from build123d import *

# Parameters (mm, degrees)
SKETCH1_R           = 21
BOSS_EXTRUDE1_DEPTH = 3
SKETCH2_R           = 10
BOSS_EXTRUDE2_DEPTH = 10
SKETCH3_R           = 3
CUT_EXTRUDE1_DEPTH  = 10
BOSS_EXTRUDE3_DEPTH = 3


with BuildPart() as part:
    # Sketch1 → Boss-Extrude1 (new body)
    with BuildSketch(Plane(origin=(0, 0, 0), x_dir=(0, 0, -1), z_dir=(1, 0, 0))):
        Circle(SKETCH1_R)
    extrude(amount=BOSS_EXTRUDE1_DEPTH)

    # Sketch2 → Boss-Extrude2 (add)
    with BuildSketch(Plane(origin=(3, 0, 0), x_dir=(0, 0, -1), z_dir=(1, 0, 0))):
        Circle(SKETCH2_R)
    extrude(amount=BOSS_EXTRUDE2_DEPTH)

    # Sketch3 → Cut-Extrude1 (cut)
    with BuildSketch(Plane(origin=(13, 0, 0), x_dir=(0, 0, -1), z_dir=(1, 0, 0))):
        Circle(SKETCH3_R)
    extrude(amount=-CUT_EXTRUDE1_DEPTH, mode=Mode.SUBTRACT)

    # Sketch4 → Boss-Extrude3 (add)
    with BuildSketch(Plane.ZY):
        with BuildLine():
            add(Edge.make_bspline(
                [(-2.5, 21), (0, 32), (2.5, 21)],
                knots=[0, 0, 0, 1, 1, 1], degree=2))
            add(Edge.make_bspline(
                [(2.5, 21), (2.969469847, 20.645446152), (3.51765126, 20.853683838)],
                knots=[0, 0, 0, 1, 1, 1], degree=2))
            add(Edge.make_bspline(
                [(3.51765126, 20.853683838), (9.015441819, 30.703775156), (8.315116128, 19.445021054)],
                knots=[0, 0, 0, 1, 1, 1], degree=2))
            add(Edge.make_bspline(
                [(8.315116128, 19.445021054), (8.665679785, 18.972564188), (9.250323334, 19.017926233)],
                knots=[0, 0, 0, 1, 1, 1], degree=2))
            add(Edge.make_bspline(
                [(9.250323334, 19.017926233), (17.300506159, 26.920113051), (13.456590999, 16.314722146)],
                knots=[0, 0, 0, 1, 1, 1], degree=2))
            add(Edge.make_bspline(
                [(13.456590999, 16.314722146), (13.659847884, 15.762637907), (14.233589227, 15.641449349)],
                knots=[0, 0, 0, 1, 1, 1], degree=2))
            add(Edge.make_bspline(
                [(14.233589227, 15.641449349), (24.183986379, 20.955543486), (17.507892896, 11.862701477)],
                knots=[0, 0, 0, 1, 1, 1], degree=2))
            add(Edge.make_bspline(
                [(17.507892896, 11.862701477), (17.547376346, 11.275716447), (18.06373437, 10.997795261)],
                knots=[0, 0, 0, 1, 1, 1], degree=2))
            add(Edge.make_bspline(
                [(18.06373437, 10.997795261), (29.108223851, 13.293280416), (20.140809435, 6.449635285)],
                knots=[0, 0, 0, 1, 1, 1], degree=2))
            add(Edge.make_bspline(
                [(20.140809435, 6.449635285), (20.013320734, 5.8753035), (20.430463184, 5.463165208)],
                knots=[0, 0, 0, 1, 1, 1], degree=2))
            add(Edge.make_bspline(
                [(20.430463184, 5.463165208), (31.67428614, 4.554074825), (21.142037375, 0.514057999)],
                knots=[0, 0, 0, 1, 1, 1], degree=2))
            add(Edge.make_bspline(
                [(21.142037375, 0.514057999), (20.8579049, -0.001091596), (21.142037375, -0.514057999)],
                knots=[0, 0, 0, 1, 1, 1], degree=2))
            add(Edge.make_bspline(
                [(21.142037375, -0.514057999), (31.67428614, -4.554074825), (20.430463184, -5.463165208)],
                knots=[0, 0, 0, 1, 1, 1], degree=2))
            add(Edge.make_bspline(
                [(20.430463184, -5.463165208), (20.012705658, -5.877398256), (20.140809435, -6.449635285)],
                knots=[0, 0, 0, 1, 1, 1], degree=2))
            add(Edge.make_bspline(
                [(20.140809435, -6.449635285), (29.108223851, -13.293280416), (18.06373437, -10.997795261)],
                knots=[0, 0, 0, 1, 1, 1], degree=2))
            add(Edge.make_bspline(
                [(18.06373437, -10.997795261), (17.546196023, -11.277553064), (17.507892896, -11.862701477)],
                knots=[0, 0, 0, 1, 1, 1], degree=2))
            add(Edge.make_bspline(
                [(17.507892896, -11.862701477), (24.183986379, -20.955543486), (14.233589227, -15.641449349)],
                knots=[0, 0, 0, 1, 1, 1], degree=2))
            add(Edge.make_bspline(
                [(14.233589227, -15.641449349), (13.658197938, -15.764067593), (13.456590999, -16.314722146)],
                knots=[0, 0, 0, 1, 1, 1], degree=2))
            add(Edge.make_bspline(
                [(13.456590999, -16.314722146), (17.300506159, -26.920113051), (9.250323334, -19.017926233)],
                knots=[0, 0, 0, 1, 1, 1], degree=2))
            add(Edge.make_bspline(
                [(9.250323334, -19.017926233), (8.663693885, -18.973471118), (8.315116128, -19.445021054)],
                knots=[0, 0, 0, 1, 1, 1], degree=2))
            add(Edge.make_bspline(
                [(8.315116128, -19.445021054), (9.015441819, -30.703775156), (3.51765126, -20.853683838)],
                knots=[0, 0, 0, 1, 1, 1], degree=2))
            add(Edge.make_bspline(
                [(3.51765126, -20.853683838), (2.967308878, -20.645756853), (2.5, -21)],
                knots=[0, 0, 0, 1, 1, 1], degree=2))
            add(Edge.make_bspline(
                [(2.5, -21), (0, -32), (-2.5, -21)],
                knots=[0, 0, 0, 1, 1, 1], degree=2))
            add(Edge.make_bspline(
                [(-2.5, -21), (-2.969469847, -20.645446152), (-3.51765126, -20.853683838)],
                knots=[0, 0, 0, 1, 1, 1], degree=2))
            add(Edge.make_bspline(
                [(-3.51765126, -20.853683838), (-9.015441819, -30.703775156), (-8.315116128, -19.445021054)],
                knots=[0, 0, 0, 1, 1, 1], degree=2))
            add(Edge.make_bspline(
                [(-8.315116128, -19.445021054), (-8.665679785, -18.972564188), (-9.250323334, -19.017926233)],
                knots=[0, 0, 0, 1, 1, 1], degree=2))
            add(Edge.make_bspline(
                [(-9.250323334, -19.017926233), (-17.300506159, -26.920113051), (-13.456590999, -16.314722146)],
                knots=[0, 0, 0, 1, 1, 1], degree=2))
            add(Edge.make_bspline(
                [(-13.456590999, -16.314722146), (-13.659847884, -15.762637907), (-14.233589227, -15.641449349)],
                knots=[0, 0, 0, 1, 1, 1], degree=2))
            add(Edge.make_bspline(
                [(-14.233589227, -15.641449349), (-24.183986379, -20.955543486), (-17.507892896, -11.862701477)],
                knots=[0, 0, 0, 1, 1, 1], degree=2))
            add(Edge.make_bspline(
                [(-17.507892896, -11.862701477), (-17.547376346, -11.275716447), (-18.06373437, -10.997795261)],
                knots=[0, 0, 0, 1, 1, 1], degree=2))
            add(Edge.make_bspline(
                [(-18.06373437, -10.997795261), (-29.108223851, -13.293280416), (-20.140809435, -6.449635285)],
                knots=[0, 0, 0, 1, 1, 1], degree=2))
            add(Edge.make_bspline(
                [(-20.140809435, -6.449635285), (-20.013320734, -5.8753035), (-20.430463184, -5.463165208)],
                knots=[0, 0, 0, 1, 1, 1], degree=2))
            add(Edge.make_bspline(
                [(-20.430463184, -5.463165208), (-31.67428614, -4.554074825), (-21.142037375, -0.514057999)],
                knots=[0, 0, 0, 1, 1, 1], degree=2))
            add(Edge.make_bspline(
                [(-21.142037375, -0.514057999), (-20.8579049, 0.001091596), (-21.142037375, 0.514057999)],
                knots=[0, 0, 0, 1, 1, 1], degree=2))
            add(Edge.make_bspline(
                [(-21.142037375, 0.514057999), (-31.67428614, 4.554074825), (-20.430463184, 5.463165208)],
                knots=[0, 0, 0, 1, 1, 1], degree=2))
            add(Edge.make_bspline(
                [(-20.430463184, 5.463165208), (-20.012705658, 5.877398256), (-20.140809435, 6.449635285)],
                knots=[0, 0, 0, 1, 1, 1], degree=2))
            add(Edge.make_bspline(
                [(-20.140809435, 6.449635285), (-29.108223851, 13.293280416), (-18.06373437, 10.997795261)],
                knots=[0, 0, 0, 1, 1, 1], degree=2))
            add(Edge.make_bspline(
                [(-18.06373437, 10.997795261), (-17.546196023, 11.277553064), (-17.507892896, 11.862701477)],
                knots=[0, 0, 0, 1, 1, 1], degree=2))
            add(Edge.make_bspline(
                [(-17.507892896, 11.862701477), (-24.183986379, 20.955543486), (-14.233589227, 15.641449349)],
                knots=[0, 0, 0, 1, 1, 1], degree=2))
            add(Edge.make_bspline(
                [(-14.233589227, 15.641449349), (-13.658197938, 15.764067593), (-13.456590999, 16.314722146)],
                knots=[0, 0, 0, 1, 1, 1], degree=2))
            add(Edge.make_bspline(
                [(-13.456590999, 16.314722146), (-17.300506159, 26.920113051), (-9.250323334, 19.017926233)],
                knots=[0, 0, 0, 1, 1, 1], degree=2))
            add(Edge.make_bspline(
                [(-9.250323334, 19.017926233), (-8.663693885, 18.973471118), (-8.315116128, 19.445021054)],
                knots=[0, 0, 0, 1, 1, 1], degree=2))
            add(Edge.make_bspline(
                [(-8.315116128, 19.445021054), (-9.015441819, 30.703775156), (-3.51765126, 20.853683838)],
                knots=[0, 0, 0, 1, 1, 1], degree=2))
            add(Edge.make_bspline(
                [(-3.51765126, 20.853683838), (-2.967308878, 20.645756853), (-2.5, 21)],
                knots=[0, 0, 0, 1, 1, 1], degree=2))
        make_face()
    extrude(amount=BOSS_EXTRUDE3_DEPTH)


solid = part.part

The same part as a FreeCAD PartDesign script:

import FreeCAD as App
import Part
import Sketcher

doc = App.newDocument("Part")
body = doc.addObject("PartDesign::Body", "Body")

# Sketch on YZ plane
sketch1 = body.newObject("Sketcher::SketchObject", "Sketch")
sketch1.AttachmentSupport = (doc.getObject("YZ_Plane"), [""])
sketch1.MapMode = "FlatFace"
sketch1.addGeometry(Part.Circle(App.Vector(0, 0, 0), App.Vector(0, 0, 1), 21), False)
sketch1.addConstraint(Sketcher.Constraint("Coincident", 0, 3, -1, 1))
sketch1.addConstraint(Sketcher.Constraint("Diameter", 0, 42.0))
pad1 = body.newObject("PartDesign::Pad", "Pad")
pad1.Profile = sketch1
pad1.Length = 3

# Sketch on YZ plane
sketch2 = body.newObject("Sketcher::SketchObject", "Sketch001")
sketch2.AttachmentSupport = (doc.getObject("YZ_Plane"), [""])
sketch2.MapMode = "FlatFace"
sketch2.AttachmentOffset = App.Placement(App.Vector(0, 0, 3), App.Rotation())
sketch2.addGeometry(Part.Circle(App.Vector(0, 0, 0), App.Vector(0, 0, 1), 10), False)
sketch2.addConstraint(Sketcher.Constraint("Coincident", 0, 3, -1, 1))
sketch2.addConstraint(Sketcher.Constraint("Diameter", 0, 20.0))
pad2 = body.newObject("PartDesign::Pad", "Pad001")
pad2.Profile = sketch2
pad2.Length = 10

# Sketch on YZ plane
sketch3 = body.newObject("Sketcher::SketchObject", "Sketch002")
sketch3.AttachmentSupport = (doc.getObject("YZ_Plane"), [""])
sketch3.MapMode = "FlatFace"
sketch3.AttachmentOffset = App.Placement(App.Vector(0, 0, 13), App.Rotation())
sketch3.addGeometry(Part.Circle(App.Vector(0, 0, 0), App.Vector(0, 0, 1), 3), False)
sketch3.addConstraint(Sketcher.Constraint("Coincident", 0, 3, -1, 1))
sketch3.addConstraint(Sketcher.Constraint("Diameter", 0, 6.0))
pocket1 = body.newObject("PartDesign::Pocket", "Pocket")
pocket1.Profile = sketch3
pocket1.Length = 10

# Sketch on YZ plane
sketch4 = body.newObject("Sketcher::SketchObject", "Sketch003")
sketch4.AttachmentSupport = (doc.getObject("YZ_Plane"), [""])
sketch4.MapMode = "FlatFace"
sketch4.addGeometry(Part.BSplineCurve([App.Vector(21, -2.5, 0), App.Vector(32, 0, 0), App.Vector(21, 2.5, 0)], [3, 3], [0, 1], False, 2, [1, 1, 1], False), False)
sketch4.addGeometry(Part.BSplineCurve([App.Vector(20.853684, -3.517651, 0), App.Vector(20.645757, -2.967309, 0), App.Vector(21, -2.5, 0)], [3, 3], [0, 1], False, 2, [1, 1, 1], False), False)
sketch4.addGeometry(Part.BSplineCurve([App.Vector(19.445021, -8.315116, 0), App.Vector(30.703775, -9.015442, 0), App.Vector(20.853684, -3.517651, 0)], [3, 3], [0, 1], False, 2, [1, 1, 1], False), False)
sketch4.addGeometry(Part.BSplineCurve([App.Vector(19.017926, -9.250323, 0), App.Vector(18.973471, -8.663694, 0), App.Vector(19.445021, -8.315116, 0)], [3, 3], [0, 1], False, 2, [1, 1, 1], False), False)
sketch4.addGeometry(Part.BSplineCurve([App.Vector(16.314722, -13.456591, 0), App.Vector(26.920113, -17.300506, 0), App.Vector(19.017926, -9.250323, 0)], [3, 3], [0, 1], False, 2, [1, 1, 1], False), False)
sketch4.addGeometry(Part.BSplineCurve([App.Vector(15.641449, -14.233589, 0), App.Vector(15.764068, -13.658198, 0), App.Vector(16.314722, -13.456591, 0)], [3, 3], [0, 1], False, 2, [1, 1, 1], False), False)
sketch4.addGeometry(Part.BSplineCurve([App.Vector(11.862701, -17.507893, 0), App.Vector(20.955543, -24.183986, 0), App.Vector(15.641449, -14.233589, 0)], [3, 3], [0, 1], False, 2, [1, 1, 1], False), False)
sketch4.addGeometry(Part.BSplineCurve([App.Vector(10.997795, -18.063734, 0), App.Vector(11.277553, -17.546196, 0), App.Vector(11.862701, -17.507893, 0)], [3, 3], [0, 1], False, 2, [1, 1, 1], False), False)
sketch4.addGeometry(Part.BSplineCurve([App.Vector(6.449635, -20.140809, 0), App.Vector(13.29328, -29.108224, 0), App.Vector(10.997795, -18.063734, 0)], [3, 3], [0, 1], False, 2, [1, 1, 1], False), False)
sketch4.addGeometry(Part.BSplineCurve([App.Vector(5.463165, -20.430463, 0), App.Vector(5.877398, -20.012706, 0), App.Vector(6.449635, -20.140809, 0)], [3, 3], [0, 1], False, 2, [1, 1, 1], False), False)
sketch4.addGeometry(Part.BSplineCurve([App.Vector(0.514058, -21.142037, 0), App.Vector(4.554075, -31.674286, 0), App.Vector(5.463165, -20.430463, 0)], [3, 3], [0, 1], False, 2, [1, 1, 1], False), False)
sketch4.addGeometry(Part.BSplineCurve([App.Vector(-0.514058, -21.142037, 0), App.Vector(0.001092, -20.857905, 0), App.Vector(0.514058, -21.142037, 0)], [3, 3], [0, 1], False, 2, [1, 1, 1], False), False)
sketch4.addGeometry(Part.BSplineCurve([App.Vector(-5.463165, -20.430463, 0), App.Vector(-4.554075, -31.674286, 0), App.Vector(-0.514058, -21.142037, 0)], [3, 3], [0, 1], False, 2, [1, 1, 1], False), False)
sketch4.addGeometry(Part.BSplineCurve([App.Vector(-6.449635, -20.140809, 0), App.Vector(-5.875304, -20.013321, 0), App.Vector(-5.463165, -20.430463, 0)], [3, 3], [0, 1], False, 2, [1, 1, 1], False), False)
sketch4.addGeometry(Part.BSplineCurve([App.Vector(-10.997795, -18.063734, 0), App.Vector(-13.29328, -29.108224, 0), App.Vector(-6.449635, -20.140809, 0)], [3, 3], [0, 1], False, 2, [1, 1, 1], False), False)
sketch4.addGeometry(Part.BSplineCurve([App.Vector(-11.862701, -17.507893, 0), App.Vector(-11.275716, -17.547376, 0), App.Vector(-10.997795, -18.063734, 0)], [3, 3], [0, 1], False, 2, [1, 1, 1], False), False)
sketch4.addGeometry(Part.BSplineCurve([App.Vector(-15.641449, -14.233589, 0), App.Vector(-20.955543, -24.183986, 0), App.Vector(-11.862701, -17.507893, 0)], [3, 3], [0, 1], False, 2, [1, 1, 1], False), False)
sketch4.addGeometry(Part.BSplineCurve([App.Vector(-16.314722, -13.456591, 0), App.Vector(-15.762638, -13.659848, 0), App.Vector(-15.641449, -14.233589, 0)], [3, 3], [0, 1], False, 2, [1, 1, 1], False), False)
sketch4.addGeometry(Part.BSplineCurve([App.Vector(-19.017926, -9.250323, 0), App.Vector(-26.920113, -17.300506, 0), App.Vector(-16.314722, -13.456591, 0)], [3, 3], [0, 1], False, 2, [1, 1, 1], False), False)
sketch4.addGeometry(Part.BSplineCurve([App.Vector(-19.445021, -8.315116, 0), App.Vector(-18.972564, -8.66568, 0), App.Vector(-19.017926, -9.250323, 0)], [3, 3], [0, 1], False, 2, [1, 1, 1], False), False)
sketch4.addGeometry(Part.BSplineCurve([App.Vector(-20.853684, -3.517651, 0), App.Vector(-30.703775, -9.015442, 0), App.Vector(-19.445021, -8.315116, 0)], [3, 3], [0, 1], False, 2, [1, 1, 1], False), False)
sketch4.addGeometry(Part.BSplineCurve([App.Vector(-21, -2.5, 0), App.Vector(-20.645446, -2.96947, 0), App.Vector(-20.853684, -3.517651, 0)], [3, 3], [0, 1], False, 2, [1, 1, 1], False), False)
sketch4.addGeometry(Part.BSplineCurve([App.Vector(-21, 2.5, 0), App.Vector(-32, 0, 0), App.Vector(-21, -2.5, 0)], [3, 3], [0, 1], False, 2, [1, 1, 1], False), False)
sketch4.addGeometry(Part.BSplineCurve([App.Vector(-20.853684, 3.517651, 0), App.Vector(-20.645757, 2.967309, 0), App.Vector(-21, 2.5, 0)], [3, 3], [0, 1], False, 2, [1, 1, 1], False), False)
sketch4.addGeometry(Part.BSplineCurve([App.Vector(-19.445021, 8.315116, 0), App.Vector(-30.703775, 9.015442, 0), App.Vector(-20.853684, 3.517651, 0)], [3, 3], [0, 1], False, 2, [1, 1, 1], False), False)
sketch4.addGeometry(Part.BSplineCurve([App.Vector(-19.017926, 9.250323, 0), App.Vector(-18.973471, 8.663694, 0), App.Vector(-19.445021, 8.315116, 0)], [3, 3], [0, 1], False, 2, [1, 1, 1], False), False)
sketch4.addGeometry(Part.BSplineCurve([App.Vector(-16.314722, 13.456591, 0), App.Vector(-26.920113, 17.300506, 0), App.Vector(-19.017926, 9.250323, 0)], [3, 3], [0, 1], False, 2, [1, 1, 1], False), False)
sketch4.addGeometry(Part.BSplineCurve([App.Vector(-15.641449, 14.233589, 0), App.Vector(-15.764068, 13.658198, 0), App.Vector(-16.314722, 13.456591, 0)], [3, 3], [0, 1], False, 2, [1, 1, 1], False), False)
sketch4.addGeometry(Part.BSplineCurve([App.Vector(-11.862701, 17.507893, 0), App.Vector(-20.955543, 24.183986, 0), App.Vector(-15.641449, 14.233589, 0)], [3, 3], [0, 1], False, 2, [1, 1, 1], False), False)
sketch4.addGeometry(Part.BSplineCurve([App.Vector(-10.997795, 18.063734, 0), App.Vector(-11.277553, 17.546196, 0), App.Vector(-11.862701, 17.507893, 0)], [3, 3], [0, 1], False, 2, [1, 1, 1], False), False)
sketch4.addGeometry(Part.BSplineCurve([App.Vector(-6.449635, 20.140809, 0), App.Vector(-13.29328, 29.108224, 0), App.Vector(-10.997795, 18.063734, 0)], [3, 3], [0, 1], False, 2, [1, 1, 1], False), False)
sketch4.addGeometry(Part.BSplineCurve([App.Vector(-5.463165, 20.430463, 0), App.Vector(-5.877398, 20.012706, 0), App.Vector(-6.449635, 20.140809, 0)], [3, 3], [0, 1], False, 2, [1, 1, 1], False), False)
sketch4.addGeometry(Part.BSplineCurve([App.Vector(-0.514058, 21.142037, 0), App.Vector(-4.554075, 31.674286, 0), App.Vector(-5.463165, 20.430463, 0)], [3, 3], [0, 1], False, 2, [1, 1, 1], False), False)
sketch4.addGeometry(Part.BSplineCurve([App.Vector(0.514058, 21.142037, 0), App.Vector(-0.001092, 20.857905, 0), App.Vector(-0.514058, 21.142037, 0)], [3, 3], [0, 1], False, 2, [1, 1, 1], False), False)
sketch4.addGeometry(Part.BSplineCurve([App.Vector(5.463165, 20.430463, 0), App.Vector(4.554075, 31.674286, 0), App.Vector(0.514058, 21.142037, 0)], [3, 3], [0, 1], False, 2, [1, 1, 1], False), False)
sketch4.addGeometry(Part.BSplineCurve([App.Vector(6.449635, 20.140809, 0), App.Vector(5.875304, 20.013321, 0), App.Vector(5.463165, 20.430463, 0)], [3, 3], [0, 1], False, 2, [1, 1, 1], False), False)
sketch4.addGeometry(Part.BSplineCurve([App.Vector(10.997795, 18.063734, 0), App.Vector(13.29328, 29.108224, 0), App.Vector(6.449635, 20.140809, 0)], [3, 3], [0, 1], False, 2, [1, 1, 1], False), False)
sketch4.addGeometry(Part.BSplineCurve([App.Vector(11.862701, 17.507893, 0), App.Vector(11.275716, 17.547376, 0), App.Vector(10.997795, 18.063734, 0)], [3, 3], [0, 1], False, 2, [1, 1, 1], False), False)
sketch4.addGeometry(Part.BSplineCurve([App.Vector(15.641449, 14.233589, 0), App.Vector(20.955543, 24.183986, 0), App.Vector(11.862701, 17.507893, 0)], [3, 3], [0, 1], False, 2, [1, 1, 1], False), False)
sketch4.addGeometry(Part.BSplineCurve([App.Vector(16.314722, 13.456591, 0), App.Vector(15.762638, 13.659848, 0), App.Vector(15.641449, 14.233589, 0)], [3, 3], [0, 1], False, 2, [1, 1, 1], False), False)
sketch4.addGeometry(Part.BSplineCurve([App.Vector(19.017926, 9.250323, 0), App.Vector(26.920113, 17.300506, 0), App.Vector(16.314722, 13.456591, 0)], [3, 3], [0, 1], False, 2, [1, 1, 1], False), False)
sketch4.addGeometry(Part.BSplineCurve([App.Vector(19.445021, 8.315116, 0), App.Vector(18.972564, 8.66568, 0), App.Vector(19.017926, 9.250323, 0)], [3, 3], [0, 1], False, 2, [1, 1, 1], False), False)
sketch4.addGeometry(Part.BSplineCurve([App.Vector(20.853684, 3.517651, 0), App.Vector(30.703775, 9.015442, 0), App.Vector(19.445021, 8.315116, 0)], [3, 3], [0, 1], False, 2, [1, 1, 1], False), False)
sketch4.addGeometry(Part.BSplineCurve([App.Vector(21, 2.5, 0), App.Vector(20.645446, 2.96947, 0), App.Vector(20.853684, 3.517651, 0)], [3, 3], [0, 1], False, 2, [1, 1, 1], False), False)
sketch4.addConstraint(Sketcher.Constraint("Block", 0))
sketch4.addConstraint(Sketcher.Constraint("Block", 1))
sketch4.addConstraint(Sketcher.Constraint("Block", 2))
sketch4.addConstraint(Sketcher.Constraint("Block", 3))
sketch4.addConstraint(Sketcher.Constraint("Block", 4))
sketch4.addConstraint(Sketcher.Constraint("Block", 5))
sketch4.addConstraint(Sketcher.Constraint("Block", 6))
sketch4.addConstraint(Sketcher.Constraint("Block", 7))
sketch4.addConstraint(Sketcher.Constraint("Block", 8))
sketch4.addConstraint(Sketcher.Constraint("Block", 9))
sketch4.addConstraint(Sketcher.Constraint("Block", 10))
sketch4.addConstraint(Sketcher.Constraint("Block", 11))
sketch4.addConstraint(Sketcher.Constraint("Block", 12))
sketch4.addConstraint(Sketcher.Constraint("Block", 13))
sketch4.addConstraint(Sketcher.Constraint("Block", 14))
sketch4.addConstraint(Sketcher.Constraint("Block", 15))
sketch4.addConstraint(Sketcher.Constraint("Block", 16))
sketch4.addConstraint(Sketcher.Constraint("Block", 17))
sketch4.addConstraint(Sketcher.Constraint("Block", 18))
sketch4.addConstraint(Sketcher.Constraint("Block", 19))
sketch4.addConstraint(Sketcher.Constraint("Block", 20))
sketch4.addConstraint(Sketcher.Constraint("Block", 21))
sketch4.addConstraint(Sketcher.Constraint("Block", 22))
sketch4.addConstraint(Sketcher.Constraint("Block", 23))
sketch4.addConstraint(Sketcher.Constraint("Block", 24))
sketch4.addConstraint(Sketcher.Constraint("Block", 25))
sketch4.addConstraint(Sketcher.Constraint("Block", 26))
sketch4.addConstraint(Sketcher.Constraint("Block", 27))
sketch4.addConstraint(Sketcher.Constraint("Block", 28))
sketch4.addConstraint(Sketcher.Constraint("Block", 29))
sketch4.addConstraint(Sketcher.Constraint("Block", 30))
sketch4.addConstraint(Sketcher.Constraint("Block", 31))
sketch4.addConstraint(Sketcher.Constraint("Block", 32))
sketch4.addConstraint(Sketcher.Constraint("Block", 33))
sketch4.addConstraint(Sketcher.Constraint("Block", 34))
sketch4.addConstraint(Sketcher.Constraint("Block", 35))
sketch4.addConstraint(Sketcher.Constraint("Block", 36))
sketch4.addConstraint(Sketcher.Constraint("Block", 37))
sketch4.addConstraint(Sketcher.Constraint("Block", 38))
sketch4.addConstraint(Sketcher.Constraint("Block", 39))
sketch4.addConstraint(Sketcher.Constraint("Block", 40))
sketch4.addConstraint(Sketcher.Constraint("Block", 41))
sketch4.addConstraint(Sketcher.Constraint("Block", 42))
sketch4.addConstraint(Sketcher.Constraint("Block", 43))
pad3 = body.newObject("PartDesign::Pad", "Pad002")
pad3.Profile = sketch4
pad3.Length = 3
pad3.Reversed = True

doc.recompute()
